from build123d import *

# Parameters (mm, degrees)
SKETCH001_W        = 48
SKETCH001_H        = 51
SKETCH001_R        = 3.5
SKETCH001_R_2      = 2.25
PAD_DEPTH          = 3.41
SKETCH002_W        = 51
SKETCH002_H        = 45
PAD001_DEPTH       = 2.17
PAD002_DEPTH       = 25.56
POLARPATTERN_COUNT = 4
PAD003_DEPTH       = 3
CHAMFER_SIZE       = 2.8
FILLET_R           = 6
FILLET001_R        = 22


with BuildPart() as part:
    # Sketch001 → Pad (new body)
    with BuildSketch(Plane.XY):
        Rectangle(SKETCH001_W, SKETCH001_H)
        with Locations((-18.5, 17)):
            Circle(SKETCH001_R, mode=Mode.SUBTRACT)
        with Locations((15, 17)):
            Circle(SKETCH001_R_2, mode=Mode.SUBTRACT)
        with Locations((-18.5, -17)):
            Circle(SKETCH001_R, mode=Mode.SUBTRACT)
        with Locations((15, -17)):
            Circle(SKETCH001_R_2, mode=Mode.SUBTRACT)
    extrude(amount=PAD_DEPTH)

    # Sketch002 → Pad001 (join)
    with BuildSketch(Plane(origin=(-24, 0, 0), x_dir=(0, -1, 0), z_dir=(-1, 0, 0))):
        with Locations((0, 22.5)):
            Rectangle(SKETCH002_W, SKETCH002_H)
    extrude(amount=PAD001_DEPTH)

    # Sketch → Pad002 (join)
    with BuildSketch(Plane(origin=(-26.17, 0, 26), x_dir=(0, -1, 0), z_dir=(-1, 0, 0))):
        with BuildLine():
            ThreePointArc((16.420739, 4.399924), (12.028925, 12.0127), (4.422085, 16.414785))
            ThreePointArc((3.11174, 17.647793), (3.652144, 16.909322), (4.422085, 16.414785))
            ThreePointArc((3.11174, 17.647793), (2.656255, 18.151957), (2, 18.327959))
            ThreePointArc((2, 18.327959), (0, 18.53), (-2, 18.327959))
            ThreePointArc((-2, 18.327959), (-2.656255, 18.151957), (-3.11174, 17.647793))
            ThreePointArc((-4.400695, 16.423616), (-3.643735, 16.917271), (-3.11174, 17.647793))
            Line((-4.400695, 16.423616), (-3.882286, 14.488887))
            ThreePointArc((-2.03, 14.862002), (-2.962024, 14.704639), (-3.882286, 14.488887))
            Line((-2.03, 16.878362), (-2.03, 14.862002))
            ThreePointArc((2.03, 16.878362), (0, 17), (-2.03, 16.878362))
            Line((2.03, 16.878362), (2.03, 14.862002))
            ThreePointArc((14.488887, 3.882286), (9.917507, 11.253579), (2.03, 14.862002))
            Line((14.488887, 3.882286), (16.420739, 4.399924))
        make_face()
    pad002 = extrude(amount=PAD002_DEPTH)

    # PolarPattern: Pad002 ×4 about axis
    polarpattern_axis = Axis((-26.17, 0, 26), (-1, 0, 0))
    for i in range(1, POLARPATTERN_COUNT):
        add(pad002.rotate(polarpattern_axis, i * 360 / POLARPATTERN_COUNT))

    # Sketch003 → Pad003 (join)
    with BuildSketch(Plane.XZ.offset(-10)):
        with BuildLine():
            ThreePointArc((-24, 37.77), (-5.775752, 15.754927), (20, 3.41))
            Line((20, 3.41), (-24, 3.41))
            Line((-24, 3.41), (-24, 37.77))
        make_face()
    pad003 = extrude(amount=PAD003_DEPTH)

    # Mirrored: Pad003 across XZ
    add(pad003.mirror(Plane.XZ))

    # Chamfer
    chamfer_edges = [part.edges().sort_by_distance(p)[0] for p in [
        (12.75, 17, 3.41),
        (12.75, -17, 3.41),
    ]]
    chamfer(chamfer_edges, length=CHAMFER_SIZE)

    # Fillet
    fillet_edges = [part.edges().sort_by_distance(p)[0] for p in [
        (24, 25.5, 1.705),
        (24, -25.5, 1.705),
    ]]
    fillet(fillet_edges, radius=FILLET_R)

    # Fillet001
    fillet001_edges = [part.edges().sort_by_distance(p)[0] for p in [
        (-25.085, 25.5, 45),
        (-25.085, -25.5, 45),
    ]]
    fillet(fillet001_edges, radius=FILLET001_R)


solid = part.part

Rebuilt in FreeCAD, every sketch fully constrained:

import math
import FreeCAD as App
import Part
import Sketcher
Q = App.Units.Quantity


def edges_at(feature, points):
    """Names of the edges that pass closest to the given points."""
    edges = feature.Shape.Edges
    near = lambda p: min(range(len(edges)), key=lambda i: edges[i].distToShape(Part.Vertex(*p))[0])
    return sorted({f"Edge{near(p) + 1}" for p in points})

doc = App.newDocument("Part")
body = doc.addObject("PartDesign::Body", "Body")

sketch1 = body.newObject("Sketcher::SketchObject", "Sketch")
sketch1.AttachmentSupport = (doc.getObject("XY_Plane"), [""])
sketch1.MapMode = "FlatFace"
sketch1.addGeometry([
    Part.LineSegment(App.Vector(-24, 25.5, 0), App.Vector(-24, -25.5, 0)),
    Part.LineSegment(App.Vector(-24, -25.5, 0), App.Vector(24, -25.5, 0)),
    Part.LineSegment(App.Vector(24, -25.5, 0), App.Vector(24, 25.5, 0)),
    Part.LineSegment(App.Vector(24, 25.5, 0), App.Vector(-24, 25.5, 0)),
    Part.Circle(App.Vector(-18.5, -17, 0), App.Vector(0, 0, 1), 3.5),
    Part.Circle(App.Vector(15, -17, 0), App.Vector(0, 0, 1), 2.2),
    Part.Circle(App.Vector(-18.5, 17, 0), App.Vector(0, 0, 1), 3.5),
    Part.Circle(App.Vector(15, 17, 0), App.Vector(0, 0, 1), 2.2),
], False)
sketch1.addConstraint([
    Sketcher.Constraint("Coincident", 0, 2, 1, 1),
    Sketcher.Constraint("Coincident", 1, 2, 2, 1),
    Sketcher.Constraint("Coincident", 2, 2, 3, 1),
    Sketcher.Constraint("Coincident", 3, 2, 0, 1),
    Sketcher.Constraint("Vertical", 0),
    Sketcher.Constraint("Horizontal", 1),
    Sketcher.Constraint("Vertical", 2),
    Sketcher.Constraint("Horizontal", 3),
    Sketcher.Constraint("Equal", 4, 6),
    Sketcher.Constraint("Equal", 5, 7),
    Sketcher.Constraint("Symmetric", 0, 2, 2, 2, -1, 1),
    Sketcher.Constraint("Symmetric", 4, 3, 6, 3, -1),
    Sketcher.Constraint("Symmetric", 5, 3, 7, 3, -1),
    Sketcher.Constraint("Horizontal", 4, 3, 5, 3),
    Sketcher.Constraint("Diameter", 4, 7.0),
    Sketcher.Constraint("Diameter", 5, 4.5),
    Sketcher.Constraint("DistanceX", 1, 1, 1, 2, 48.0),
    Sketcher.Constraint("DistanceY", 0, 2, 0, 1, 51.0),
    Sketcher.Constraint("DistanceY", 4, 3, -1, 1, 17.0),
    Sketcher.Constraint("DistanceX", -1, 1, 5, 3, 15.0),
    Sketcher.Constraint("DistanceX", 4, 3, -1, 1, 18.5),
])
pad1 = body.newObject("PartDesign::Pad", "Pad")
pad1.Profile = sketch1
pad1.Length = 3.41

sketch2 = body.newObject("Sketcher::SketchObject", "Sketch001")
sketch2.AttachmentSupport = (doc.getObject("YZ_Plane"), [""])
sketch2.MapMode = "FlatFace"
sketch2.AttachmentOffset = App.Placement(App.Vector(0, 0, -24), App.Rotation())
sketch2.addGeometry([
    Part.LineSegment(App.Vector(26, 45, 0), App.Vector(26, 0, 0)),
    Part.LineSegment(App.Vector(26, 0, 0), App.Vector(-26, 0, 0)),
    Part.LineSegment(App.Vector(-26, 0, 0), App.Vector(-26, 45, 0)),
    Part.LineSegment(App.Vector(-26, 45, 0), App.Vector(26, 45, 0)),
], False)
sketch2.addConstraint([
    Sketcher.Constraint("Coincident", 0, 2, 1, 1),
    Sketcher.Constraint("Coincident", 1, 2, 2, 1),
    Sketcher.Constraint("Coincident", 2, 2, 3, 1),
    Sketcher.Constraint("Coincident", 3, 2, 0, 1),
    Sketcher.Constraint("Vertical", 0),
    Sketcher.Constraint("Horizontal", 1),
    Sketcher.Constraint("Vertical", 2),
    Sketcher.Constraint("Horizontal", 3),
    Sketcher.Constraint("Symmetric", 0, 2, 1, 2, -1, 1),
    Sketcher.Constraint("DistanceX", 1, 2, 1, 1, 51.0),
    Sketcher.Constraint("DistanceY", 0, 2, 0, 1, 45.0),
])
pad2 = body.newObject("PartDesign::Pad", "Pad001")
pad2.Profile = sketch2
pad2.Length = 2.17
pad2.Reversed = True

sketch3 = body.newObject("Sketcher::SketchObject", "Sketch002")
sketch3.AttachmentSupport = (doc.getObject("YZ_Plane"), [""])
sketch3.MapMode = "FlatFace"
sketch3.AttachmentOffset = App.Placement(App.Vector(0, 0, -26.17), App.Rotation())
sketch3.addGeometry([
    Part.ArcOfCircle(Part.Circle(App.Vector(0, 26, 0), App.Vector(0, 0, 1), 17), math.radians(105), math.radians(165)),
    Part.ArcOfCircle(Part.Circle(App.Vector(-5.4, 44.7, 0), App.Vector(0, 0, 1), 2.5), math.radians(-68), math.radians(-26)),
    Part.ArcOfCircle(Part.Circle(App.Vector(-2, 43.1, 0), App.Vector(0, 0, 1), 1.2), math.radians(89), math.radians(154)),
    Part.ArcOfCircle(Part.Circle(App.Vector(0, 34.5, 0), App.Vector(0, 0, 1), 10), math.radians(78), math.radians(102)),
    Part.ArcOfCircle(Part.Circle(App.Vector(2, 43.1, 0), App.Vector(0, 0, 1), 1.2), math.radians(26), math.radians(91)),
    Part.ArcOfCircle(Part.Circle(App.Vector(5.4, 44.7, 0), App.Vector(0, 0, 1), 2.5), math.radians(-154), math.radians(-113)),
    Part.LineSegment(App.Vector(4.4, 42.4, 0), App.Vector(3.9, 40.5, 0)),
    Part.ArcOfCircle(Part.Circle(App.Vector(0, 26, 0), App.Vector(0, 0, 1), 15), math.radians(75), math.radians(82.22)),
    Part.LineSegment(App.Vector(2, 40.9, 0), App.Vector(2, 42.9, 0)),
    Part.ArcOfCircle(Part.Circle(App.Vector(0, 26, 0), App.Vector(0, 0, 1), 17), math.radians(83.14), math.radians(96.86)),
    Part.LineSegment(App.Vector(-2, 42.9, 0), App.Vector(-2, 40.9, 0)),
    Part.ArcOfCircle(Part.Circle(App.Vector(0, 26, 0), App.Vector(0, 0, 1), 15), math.radians(98), math.radians(165)),
    Part.LineSegment(App.Vector(-14.5, 29.9, 0), App.Vector(-16.4, 30.4, 0)),
], False)
sketch3.addConstraint([
    Sketcher.Constraint("Coincident", 0, 1, 1, 1),
    Sketcher.Constraint("Tangent", 1, 2, 2, 2),
    Sketcher.Constraint("Coincident", 2, 1, 3, 2),
    Sketcher.Constraint("Coincident", 3, 1, 4, 2),
    Sketcher.Constraint("Tangent", 4, 1, 5, 1),
    Sketcher.Constraint("Coincident", 5, 2, 6, 1),
    Sketcher.Constraint("Coincident", 6, 2, 7, 1),
    Sketcher.Constraint("Coincident", 7, 2, 8, 1),
    Sketcher.Constraint("Coincident", 8, 2, 9, 1),
    Sketcher.Constraint("Coincident", 9, 2, 10, 1),
    Sketcher.Constraint("Coincident", 10, 2, 11, 1),
    Sketcher.Constraint("Coincident", 11, 2, 12, 1),
    Sketcher.Constraint("Coincident", 12, 2, 0, 2),
    Sketcher.Constraint("Vertical", 8),
    Sketcher.Constraint("Vertical", 10),
    Sketcher.Constraint("Coincident", 11, 3, 0, 3),
    Sketcher.Constraint("Equal", 2, 4),
    Sketcher.Constraint("Symmetric", 2, 3, 4, 3, -2),
    Sketcher.Constraint("Symmetric", 1, 3, 5, 3, -2),
    Sketcher.Constraint("Symmetric", 8, 2, 9, 2, -2),
    Sketcher.Constraint("PointOnObject", 0, 3, -2),
    Sketcher.Constraint("PointOnObject", 3, 3, -2),
    Sketcher.Constraint("Perpendicular", 6, 12),
    Sketcher.Constraint("Horizontal", 7, 2, 10, 2),
    Sketcher.Constraint("Vertical", 4, 3, 7, 2),
    Sketcher.Constraint("Radius", 0, 17.000001),
    Sketcher.Constraint("Radius", 3, 10.000001),
    Sketcher.Constraint("Radius", 11, 15.000002),
    Sketcher.Constraint("Radius", 2, 1.2),
    Sketcher.Constraint("Radius", 5, 2.5),
    Sketcher.Constraint("Angle", 6, Q("-104.999998 deg")),
    Sketcher.Constraint("DistanceY", -1, 1, 0, 3, 25.999999),
    Sketcher.Constraint("DistanceX", 2, 1, -1, 1, 2.0),
    Sketcher.Constraint("DistanceX", 2, 3, -1, 1, 2.029999),
    Sketcher.Constraint("DistanceY", -1, 1, 3, 3, 34.529999),
    Sketcher.Constraint("DistanceY", -1, 1, 5, 3, 44.730001),
    Sketcher.Constraint("Radius", 7, 15.00005),
    Sketcher.Constraint("Radius", 9, 17.000016),
    Sketcher.Constraint("DistanceY", 8, 1, 8, 2, 2.01636),
    Sketcher.Constraint("DistanceY", 9, 3, 11, 2, 3.882302),
    Sketcher.Constraint("Distance", 6, 2.002979),
    Sketcher.Constraint("DistanceY", -1, 1, 7, 3, 25.999952),
])
pad3 = body.newObject("PartDesign::Pad", "Pad002")
pad3.Profile = sketch3
pad3.Length = 25.56
pad3.Reversed = True
doc.recompute()

datumline = body.newObject("PartDesign::Line", "DatumLine")
datumline.Placement = App.Placement(App.Vector(0, 0, 26), App.Rotation(App.Vector(0, 0, 1), App.Vector(-1, 0, 0)))
polarpattern = body.newObject("PartDesign::PolarPattern", "PolarPattern")
polarpattern.Originals = [pad3]
polarpattern.Axis = (datumline, [""])
polarpattern.Angle = 360
polarpattern.Occurrences = 4
body.Tip = polarpattern

sketch4 = body.newObject("Sketcher::SketchObject", "Sketch003")
sketch4.AttachmentSupport = (doc.getObject("XZ_Plane"), [""])
sketch4.MapMode = "FlatFace"
sketch4.AttachmentOffset = App.Placement(App.Vector(0, 0, -10), App.Rotation())
sketch4.addGeometry([
    Part.ArcOfCircle(Part.Circle(App.Vector(35, 68, 0), App.Vector(0, 0, 1), 67), math.radians(-153), math.radians(-103)),
    Part.LineSegment(App.Vector(-24, 38, 0), App.Vector(-24, 3, 0)),
    Part.LineSegment(App.Vector(-24, 3, 0), App.Vector(20, 3, 0)),
], False)
sketch4.addConstraint([
    Sketcher.Constraint("Coincident", 0, 1, 1, 1),
    Sketcher.Constraint("Coincident", 1, 2, 2, 1),
    Sketcher.Constraint("Coincident", 2, 2, 0, 2),
    Sketcher.Constraint("Vertical", 1),
    Sketcher.Constraint("Horizontal", 2),
    Sketcher.Constraint("DistanceX", 2, 1, 2, 2, 44.0),
    Sketcher.Constraint("DistanceX", 0, 1, -1, 1, 24.0),
    Sketcher.Constraint("DistanceY", 1, 2, 1, 1, 34.36),
    Sketcher.Constraint("DistanceY", -1, 1, 0, 1, 37.77),
    Sketcher.Constraint("Radius", 0, 66.571307),
])
pad4 = body.newObject("PartDesign::Pad", "Pad003")
pad4.Profile = sketch4
pad4.Length = 3
doc.recompute()

mirrored = body.newObject("PartDesign::Mirrored", "Mirrored")
mirrored.Originals = [pad4]
mirrored.MirrorPlane = (doc.getObject("XZ_Plane"), [""])
body.Tip = mirrored
doc.recompute()

chamfer = body.newObject("PartDesign::Chamfer", "Chamfer")
chamfer.Base = (mirrored, edges_at(mirrored, [(12.75, 17, 3.41), (12.75, -17, 3.41)]))
chamfer.Size = 2.8
doc.recompute()

fillet = body.newObject("PartDesign::Fillet", "Fillet")
fillet.Base = (chamfer, edges_at(chamfer, [(24, 25.5, 1.705), (24, -25.5, 1.705)]))
fillet.Radius = 6
doc.recompute()

fillet2 = body.newObject("PartDesign::Fillet", "Fillet001")
fillet2.Base = (fillet, edges_at(fillet, [(-25.085, 25.5, 45), (-25.085, -25.5, 45)]))
fillet2.Radius = 22

doc.recompute()
